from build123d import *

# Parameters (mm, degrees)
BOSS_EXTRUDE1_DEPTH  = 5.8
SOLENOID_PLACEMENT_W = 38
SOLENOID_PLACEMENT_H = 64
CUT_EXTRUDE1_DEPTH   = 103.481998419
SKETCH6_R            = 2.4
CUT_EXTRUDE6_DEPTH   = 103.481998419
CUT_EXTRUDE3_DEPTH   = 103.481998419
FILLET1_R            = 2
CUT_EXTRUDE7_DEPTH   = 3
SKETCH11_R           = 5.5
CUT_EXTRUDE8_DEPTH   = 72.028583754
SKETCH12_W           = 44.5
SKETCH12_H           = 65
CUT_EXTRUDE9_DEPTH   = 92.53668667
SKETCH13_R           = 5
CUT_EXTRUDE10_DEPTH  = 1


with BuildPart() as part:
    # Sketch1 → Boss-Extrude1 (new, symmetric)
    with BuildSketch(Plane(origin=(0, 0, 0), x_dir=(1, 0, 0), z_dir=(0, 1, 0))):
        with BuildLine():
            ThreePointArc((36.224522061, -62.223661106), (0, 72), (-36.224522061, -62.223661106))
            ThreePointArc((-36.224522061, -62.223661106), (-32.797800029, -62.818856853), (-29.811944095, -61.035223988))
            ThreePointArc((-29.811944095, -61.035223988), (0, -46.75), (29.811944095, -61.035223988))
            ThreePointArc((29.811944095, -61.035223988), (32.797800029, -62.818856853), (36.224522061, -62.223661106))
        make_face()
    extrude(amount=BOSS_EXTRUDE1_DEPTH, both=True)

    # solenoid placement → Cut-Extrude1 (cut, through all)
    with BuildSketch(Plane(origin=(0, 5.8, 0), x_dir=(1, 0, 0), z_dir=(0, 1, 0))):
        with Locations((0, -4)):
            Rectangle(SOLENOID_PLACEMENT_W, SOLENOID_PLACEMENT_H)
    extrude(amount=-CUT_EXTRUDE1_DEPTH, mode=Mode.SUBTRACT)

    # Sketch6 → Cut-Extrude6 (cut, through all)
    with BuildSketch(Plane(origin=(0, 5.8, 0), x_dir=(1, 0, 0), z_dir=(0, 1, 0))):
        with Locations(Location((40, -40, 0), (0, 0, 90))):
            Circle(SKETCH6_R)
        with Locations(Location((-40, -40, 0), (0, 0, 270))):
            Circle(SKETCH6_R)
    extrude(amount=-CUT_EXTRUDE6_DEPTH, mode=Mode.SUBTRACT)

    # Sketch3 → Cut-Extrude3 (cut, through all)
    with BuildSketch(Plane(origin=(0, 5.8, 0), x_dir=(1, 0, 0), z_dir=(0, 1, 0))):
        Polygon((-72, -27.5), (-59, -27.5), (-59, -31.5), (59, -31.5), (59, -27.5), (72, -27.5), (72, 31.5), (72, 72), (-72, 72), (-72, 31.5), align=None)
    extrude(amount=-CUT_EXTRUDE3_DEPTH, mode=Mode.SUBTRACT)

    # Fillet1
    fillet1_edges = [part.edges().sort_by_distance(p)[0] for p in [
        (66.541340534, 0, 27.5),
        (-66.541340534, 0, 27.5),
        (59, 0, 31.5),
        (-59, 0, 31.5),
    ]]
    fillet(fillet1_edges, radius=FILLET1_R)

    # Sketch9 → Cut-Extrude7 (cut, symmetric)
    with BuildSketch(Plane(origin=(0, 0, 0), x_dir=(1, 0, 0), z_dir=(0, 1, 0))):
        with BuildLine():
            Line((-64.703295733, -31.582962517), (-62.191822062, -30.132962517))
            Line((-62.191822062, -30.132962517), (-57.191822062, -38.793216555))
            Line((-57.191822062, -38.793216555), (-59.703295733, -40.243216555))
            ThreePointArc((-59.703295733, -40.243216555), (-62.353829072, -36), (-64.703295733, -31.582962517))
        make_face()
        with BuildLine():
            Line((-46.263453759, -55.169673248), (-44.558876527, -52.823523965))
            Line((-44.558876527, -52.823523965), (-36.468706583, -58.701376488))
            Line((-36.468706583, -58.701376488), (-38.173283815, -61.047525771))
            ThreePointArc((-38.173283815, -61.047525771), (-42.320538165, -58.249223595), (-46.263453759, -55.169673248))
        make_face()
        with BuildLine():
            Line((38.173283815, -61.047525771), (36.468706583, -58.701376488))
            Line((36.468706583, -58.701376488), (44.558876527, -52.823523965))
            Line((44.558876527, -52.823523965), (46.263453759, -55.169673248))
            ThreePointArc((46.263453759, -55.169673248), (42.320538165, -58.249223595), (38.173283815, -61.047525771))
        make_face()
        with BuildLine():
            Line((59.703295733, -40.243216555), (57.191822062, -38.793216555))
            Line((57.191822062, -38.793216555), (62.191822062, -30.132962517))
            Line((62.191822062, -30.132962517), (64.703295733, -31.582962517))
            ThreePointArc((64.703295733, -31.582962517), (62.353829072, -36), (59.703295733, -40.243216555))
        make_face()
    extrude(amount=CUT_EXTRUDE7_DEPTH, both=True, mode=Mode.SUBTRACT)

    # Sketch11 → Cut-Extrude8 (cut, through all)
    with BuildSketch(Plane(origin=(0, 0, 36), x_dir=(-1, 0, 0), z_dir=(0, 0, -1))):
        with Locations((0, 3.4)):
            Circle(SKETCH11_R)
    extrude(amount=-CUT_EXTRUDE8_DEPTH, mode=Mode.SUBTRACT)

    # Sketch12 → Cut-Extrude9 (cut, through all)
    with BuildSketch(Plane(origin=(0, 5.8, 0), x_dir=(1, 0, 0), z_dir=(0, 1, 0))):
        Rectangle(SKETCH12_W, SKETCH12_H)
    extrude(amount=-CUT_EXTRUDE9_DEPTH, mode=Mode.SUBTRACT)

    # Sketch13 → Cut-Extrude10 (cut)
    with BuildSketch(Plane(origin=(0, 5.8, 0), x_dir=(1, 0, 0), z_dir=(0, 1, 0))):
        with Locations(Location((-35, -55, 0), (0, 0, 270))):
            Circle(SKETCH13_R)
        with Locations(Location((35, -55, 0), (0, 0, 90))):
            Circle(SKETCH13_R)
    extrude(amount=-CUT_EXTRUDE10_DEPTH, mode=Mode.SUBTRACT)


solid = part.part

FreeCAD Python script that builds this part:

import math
import FreeCAD as App
import Part
import Sketcher

V = App.Vector
Q = App.Units.Quantity


def edges_at(feature, points):
    """Names of the edges that pass closest to the given points."""
    edges = feature.Shape.Edges
    near = lambda p: min(range(len(edges)), key=lambda i: edges[i].distToShape(Part.Vertex(*p))[0])
    return sorted({f"Edge{near(p) + 1}" for p in points})

doc = App.newDocument("Part")
body = doc.addObject("PartDesign::Body", "Body")

sketch1 = body.newObject("Sketcher::SketchObject", "Sketch")
sketch1.AttachmentSupport = (doc.getObject("XZ_Plane"), [""])
sketch1.MapMode = "FlatFace"
sketch1.addGeometry([
    Part.ArcOfCircle(Part.Circle(V(0, 0, 0), V(0, 0, 1), 72), math.radians(120.206525), math.radians(419.793475)),
    Part.ArcOfCircle(Part.Circle(V(-33.70893, 57.902574, 0), V(0, 0, 1), 5), math.radians(38.79458), math.radians(120.206525)),
    Part.ArcOfCircle(Part.Circle(V(0, 85, 0), V(0, 0, 1), 38.25), math.radians(-141.20542), math.radians(-38.79458)),
    Part.ArcOfCircle(Part.Circle(V(33.70893, 57.902574, 0), V(0, 0, 1), 5), math.radians(59.793475), math.radians(141.20542)),
], False)
sketch1.addConstraint([
    Sketcher.Constraint("Tangent", 0, 1, 1, 2),
    Sketcher.Constraint("Tangent", 1, 1, 2, 1),
    Sketcher.Constraint("Tangent", 2, 2, 3, 2),
    Sketcher.Constraint("Tangent", 3, 1, 0, 2),
    Sketcher.Constraint("Coincident", 0, 3, -1, 1),
    Sketcher.Constraint("Equal", 1, 3),
    Sketcher.Constraint("PointOnObject", 2, 3, -2),
    Sketcher.Constraint("Radius", 0, 72.0),
    Sketcher.Constraint("Radius", 1, 5.0),
    Sketcher.Constraint("Radius", 2, 38.25),
    Sketcher.Constraint("DistanceY", -1, 1, 2, 3, 85.0),
])
pad1 = body.newObject("PartDesign::Pad", "Pad")
pad1.Profile = sketch1
pad1.Length = 11.6
pad1.Midplane = True

sketch2 = body.newObject("Sketcher::SketchObject", "Sketch001")
sketch2.AttachmentSupport = (doc.getObject("XZ_Plane"), [""])
sketch2.MapMode = "FlatFace"
sketch2.AttachmentOffset = App.Placement(V(0, 0, -5.8), App.Rotation())
sketch2.addGeometry([
    Part.LineSegment(V(-19, -28, 0), V(-19, 36, 0)),
    Part.LineSegment(V(-19, 36, 0), V(19, 36, 0)),
    Part.LineSegment(V(19, 36, 0), V(19, -28, 0)),
    Part.LineSegment(V(19, -28, 0), V(-19, -28, 0)),
], False)
sketch2.addConstraint([
    Sketcher.Constraint("Coincident", 0, 2, 1, 1),
    Sketcher.Constraint("Coincident", 1, 2, 2, 1),
    Sketcher.Constraint("Coincident", 2, 2, 3, 1),
    Sketcher.Constraint("Coincident", 3, 2, 0, 1),
    Sketcher.Constraint("Vertical", 0),
    Sketcher.Constraint("Horizontal", 1),
    Sketcher.Constraint("Vertical", 2),
    Sketcher.Constraint("Horizontal", 3),
    Sketcher.Constraint("DistanceX", 1, 1, 1, 2, 38.0),
    Sketcher.Constraint("DistanceY", 0, 1, 0, 2, 64.0),
    Sketcher.Constraint("DistanceX", 0, 2, -1, 1, 19.0),
    Sketcher.Constraint("DistanceY", -1, 1, 0, 2, 36.0),
])
pocket1 = body.newObject("PartDesign::Pocket", "Pocket")
pocket1.Profile = sketch2
pocket1.Type = "ThroughAll"
pocket1.Reversed = True

sketch3 = body.newObject("Sketcher::SketchObject", "Sketch002")
sketch3.AttachmentSupport = (doc.getObject("XZ_Plane"), [""])
sketch3.MapMode = "FlatFace"
sketch3.AttachmentOffset = App.Placement(V(0, 0, -5.8), App.Rotation())
sketch3.addGeometry([
    Part.Circle(V(40, 40, 0), V(0, 0, 1), 2.4),
    Part.Circle(V(-40, 40, 0), V(0, 0, 1), 2.4),
], False)
sketch3.addConstraint([
    Sketcher.Constraint("Equal", 0, 1),
    Sketcher.Constraint("Symmetric", 0, 3, 1, 3, -2),
    Sketcher.Constraint("Diameter", 0, 4.8),
    Sketcher.Constraint("DistanceX", -1, 1, 0, 3, 40.0),
    Sketcher.Constraint("DistanceY", -1, 1, 0, 3, 40.0),
])
pocket2 = body.newObject("PartDesign::Pocket", "Pocket001")
pocket2.Profile = sketch3
pocket2.Type = "ThroughAll"
pocket2.Reversed = True

sketch4 = body.newObject("Sketcher::SketchObject", "Sketch003")
sketch4.AttachmentSupport = (doc.getObject("XZ_Plane"), [""])
sketch4.MapMode = "FlatFace"
sketch4.AttachmentOffset = App.Placement(V(0, 0, -5.8), App.Rotation())
sketch4.addGeometry([
    Part.LineSegment(V(-72, 27.5, 0), V(-59, 27.5, 0)),
    Part.LineSegment(V(-59, 27.5, 0), V(-59, 31.5, 0)),
    Part.LineSegment(V(-59, 31.5, 0), V(59, 31.5, 0)),
    Part.LineSegment(V(59, 31.5, 0), V(59, 27.5, 0)),
    Part.LineSegment(V(59, 27.5, 0), V(72, 27.5, 0)),
    Part.LineSegment(V(72, 27.5, 0), V(72, -72, 0)),
    Part.LineSegment(V(72, -72, 0), V(-72, -72, 0)),
    Part.LineSegment(V(-72, -72, 0), V(-72, 27.5, 0)),
], False)
sketch4.addConstraint([
    Sketcher.Constraint("Coincident", 0, 2, 1, 1),
    Sketcher.Constraint("Coincident", 1, 2, 2, 1),
    Sketcher.Constraint("Coincident", 2, 2, 3, 1),
    Sketcher.Constraint("Coincident", 3, 2, 4, 1),
    Sketcher.Constraint("Coincident", 4, 2, 5, 1),
    Sketcher.Constraint("Coincident", 5, 2, 6, 1),
    Sketcher.Constraint("Coincident", 6, 2, 7, 1),
    Sketcher.Constraint("Coincident", 7, 2, 0, 1),
    Sketcher.Constraint("Horizontal", 0),
    Sketcher.Constraint("Vertical", 1),
    Sketcher.Constraint("Horizontal", 2),
    Sketcher.Constraint("Vertical", 3),
    Sketcher.Constraint("Horizontal", 4),
    Sketcher.Constraint("Vertical", 5),
    Sketcher.Constraint("Horizontal", 6),
    Sketcher.Constraint("Vertical", 7),
    Sketcher.Constraint("Symmetric", 0, 2, 3, 2, -2),
    Sketcher.Constraint("Equal", 0, 4),
    Sketcher.Constraint("DistanceX", 0, 1, 0, 2, 13.0),
    Sketcher.Constraint("DistanceX", 2, 1, 2, 2, 118.0),
    Sketcher.Constraint("DistanceY", 1, 1, 1, 2, 4.0),
    Sketcher.Constraint("DistanceY", 5, 2, 5, 1, 99.5),
    Sketcher.Constraint("DistanceY", 5, 2, -1, 1, 72.0),
])
pocket3 = body.newObject("PartDesign::Pocket", "Pocket002")
pocket3.Profile = sketch4
pocket3.Type = "ThroughAll"
pocket3.Reversed = True
doc.recompute()

fillet = body.newObject("PartDesign::Fillet", "Fillet")
fillet.Base = (pocket3, edges_at(pocket3, [
    (66.541, 0, 27.5),
    (-66.541, 0, 27.5),
    (59, 0, 31.5),
    (-59, 0, 31.5),
]))
fillet.Radius = 2

sketch5 = body.newObject("Sketcher::SketchObject", "Sketch004")
sketch5.AttachmentSupport = (doc.getObject("XZ_Plane"), [""])
sketch5.MapMode = "FlatFace"
sketch5.addGeometry([
    Part.LineSegment(V(-62.191822, 30.132963, 0), V(-64.703296, 31.582963, 0)),
    Part.ArcOfCircle(Part.Circle(V(0, 0, 0), V(0, 0, 1), 72), math.radians(146.017921), math.radians(153.982079)),
    Part.LineSegment(V(-59.703296, 40.243217, 0), V(-57.191822, 38.793217, 0)),
    Part.LineSegment(V(-57.191822, 38.793217, 0), V(-62.191822, 30.132963, 0)),
    Part.LineSegment(V(-44.558877, 52.823524, 0), V(-46.263454, 55.169673, 0)),
    Part.ArcOfCircle(Part.Circle(V(0, 0, 0), V(0, 0, 1), 72), math.radians(122.017921), math.radians(129.982079)),
    Part.LineSegment(V(-38.173284, 61.047526, 0), V(-36.468707, 58.701376, 0)),
    Part.LineSegment(V(-36.468707, 58.701376, 0), V(-44.558877, 52.823524, 0)),
    Part.LineSegment(V(36.468707, 58.701376, 0), V(38.173284, 61.047526, 0)),
    Part.ArcOfCircle(Part.Circle(V(0, 0, 0), V(0, 0, 1), 72), math.radians(50.017921), math.radians(57.982079)),
    Part.LineSegment(V(46.263454, 55.169673, 0), V(44.558877, 52.823524, 0)),
    Part.LineSegment(V(44.558877, 52.823524, 0), V(36.468707, 58.701376, 0)),
    Part.LineSegment(V(57.191822, 38.793217, 0), V(59.703296, 40.243217, 0)),
    Part.ArcOfCircle(Part.Circle(V(0, 0, 0), V(0, 0, 1), 72), math.radians(26.017921), math.radians(33.982079)),
    Part.LineSegment(V(64.703296, 31.582963, 0), V(62.191822, 30.132963, 0)),
    Part.LineSegment(V(62.191822, 30.132963, 0), V(57.191822, 38.793217, 0)),
], False)
sketch5.addConstraint([
    Sketcher.Constraint("Coincident", 0, 2, 1, 2),
    Sketcher.Constraint("Coincident", 1, 1, 2, 1),
    Sketcher.Constraint("Coincident", 2, 2, 3, 1),
    Sketcher.Constraint("Coincident", 3, 2, 0, 1),
    Sketcher.Constraint("Coincident", 4, 2, 5, 2),
    Sketcher.Constraint("Coincident", 5, 1, 6, 1),
    Sketcher.Constraint("Coincident", 6, 2, 7, 1),
    Sketcher.Constraint("Coincident", 7, 2, 4, 1),
    Sketcher.Constraint("Coincident", 8, 2, 9, 2),
    Sketcher.Constraint("Coincident", 9, 1, 10, 1),
    Sketcher.Constraint("Coincident", 10, 2, 11, 1),
    Sketcher.Constraint("Coincident", 11, 2, 8, 1),
    Sketcher.Constraint("Coincident", 12, 2, 13, 2),
    Sketcher.Constraint("Coincident", 13, 1, 14, 1),
    Sketcher.Constraint("Coincident", 14, 2, 15, 1),
    Sketcher.Constraint("Coincident", 15, 2, 12, 1),
    Sketcher.Constraint("Coincident", 1, 3, -1, 1),
    Sketcher.Constraint("Coincident", 5, 3, -1, 1),
    Sketcher.Constraint("Coincident", 9, 3, -1, 1),
    Sketcher.Constraint("Coincident", 13, 3, -1, 1),
    Sketcher.Constraint("Equal", 1, 5),
    Sketcher.Constraint("Equal", 5, 9),
    Sketcher.Constraint("Equal", 9, 13),
    Sketcher.Constraint("Symmetric", 7, 2, 10, 2, -2),
    Sketcher.Constraint("Symmetric", 6, 2, 11, 2, -2),
    Sketcher.Constraint("Symmetric", 3, 2, 14, 2, -2),
    Sketcher.Constraint("Symmetric", 2, 2, 15, 2, -2),
    Sketcher.Constraint("Parallel", 0, 2),
    Sketcher.Constraint("Perpendicular", 2, 3),
    Sketcher.Constraint("Parallel", 4, 6),
    Sketcher.Constraint("Perpendicular", 6, 7),
    Sketcher.Constraint("Parallel", 8, 10),
    Sketcher.Constraint("Perpendicular", 10, 11),
    Sketcher.Constraint("Parallel", 12, 14),
    Sketcher.Constraint("Perpendicular", 14, 15),
    Sketcher.Constraint("Equal", 0, 2),
    Sketcher.Constraint("Equal", 2, 4),
    Sketcher.Constraint("Equal", 4, 6),
    Sketcher.Constraint("Equal", 3, 7),
    Sketcher.Constraint("Radius", 1, 72.0),
    Sketcher.Constraint("Angle", 0, Q("150 deg")),
    Sketcher.Constraint("Angle", 4, Q("126 deg")),
    Sketcher.Constraint("Distance", 3, 10.0),
    Sketcher.Constraint("Distance", 0, 2.9),
])
pocket4 = body.newObject("PartDesign::Pocket", "Pocket003")
pocket4.Profile = sketch5
pocket4.Length = 6
pocket4.Midplane = True

sketch6 = body.newObject("Sketcher::SketchObject", "Sketch005")
sketch6.AttachmentSupport = (doc.getObject("XY_Plane"), [""])
sketch6.MapMode = "FlatFace"
sketch6.AttachmentOffset = App.Placement(V(0, 0, 36), App.Rotation())
sketch6.addGeometry(Part.Circle(V(0, 3.4, 0), V(0, 0, 1), 5.5), False)
sketch6.addConstraint([
    Sketcher.Constraint("PointOnObject", 0, 3, -2),
    Sketcher.Constraint("Diameter", 0, 11.0),
    Sketcher.Constraint("DistanceY", -1, 1, 0, 3, 3.4),
])
pocket5 = body.newObject("PartDesign::Pocket", "Pocket004")
pocket5.Profile = sketch6
pocket5.Type = "ThroughAll"
pocket5.Reversed = True

sketch7 = body.newObject("Sketcher::SketchObject", "Sketch006")
sketch7.AttachmentSupport = (doc.getObject("XZ_Plane"), [""])
sketch7.MapMode = "FlatFace"
sketch7.AttachmentOffset = App.Placement(V(0, 0, -5.8), App.Rotation())
sketch7.addGeometry([
    Part.LineSegment(V(-22.25, -32.5, 0), V(-22.25, 32.5, 0)),
    Part.LineSegment(V(-22.25, 32.5, 0), V(22.25, 32.5, 0)),
    Part.LineSegment(V(22.25, 32.5, 0), V(22.25, -32.5, 0)),
    Part.LineSegment(V(22.25, -32.5, 0), V(-22.25, -32.5, 0)),
], False)
sketch7.addConstraint([
    Sketcher.Constraint("Coincident", 0, 2, 1, 1),
    Sketcher.Constraint("Coincident", 1, 2, 2, 1),
    Sketcher.Constraint("Coincident", 2, 2, 3, 1),
    Sketcher.Constraint("Coincident", 3, 2, 0, 1),
    Sketcher.Constraint("Vertical", 0),
    Sketcher.Constraint("Horizontal", 1),
    Sketcher.Constraint("Vertical", 2),
    Sketcher.Constraint("Horizontal", 3),
    Sketcher.Constraint("Symmetric", 0, 2, 2, 2, -1, 1),
    Sketcher.Constraint("DistanceY", 0, 1, 0, 2, 65.0),
    Sketcher.Constraint("DistanceX", 1, 1, 1, 2, 44.5),
])
pocket6 = body.newObject("PartDesign::Pocket", "Pocket005")
pocket6.Profile = sketch7
pocket6.Type = "ThroughAll"
pocket6.Reversed = True

sketch8 = body.newObject("Sketcher::SketchObject", "Sketch007")
sketch8.AttachmentSupport = (doc.getObject("XZ_Plane"), [""])
sketch8.MapMode = "FlatFace"
sketch8.AttachmentOffset = App.Placement(V(0, 0, -5.8), App.Rotation())
sketch8.addGeometry([
    Part.Circle(V(-35, 55, 0), V(0, 0, 1), 5),
    Part.Circle(V(35, 55, 0), V(0, 0, 1), 5),
], False)
sketch8.addConstraint([
    Sketcher.Constraint("Equal", 0, 1),
    Sketcher.Constraint("Symmetric", 0, 3, 1, 3, -2),
    Sketcher.Constraint("Diameter", 0, 10.0),
    Sketcher.Constraint("DistanceX", 0, 3, -1, 1, 35.0),
    Sketcher.Constraint("DistanceY", -1, 1, 0, 3, 55.0),
])
pocket7 = body.newObject("PartDesign::Pocket", "Pocket006")
pocket7.Profile = sketch8
pocket7.Length = 1
pocket7.Reversed = True

doc.recompute()
